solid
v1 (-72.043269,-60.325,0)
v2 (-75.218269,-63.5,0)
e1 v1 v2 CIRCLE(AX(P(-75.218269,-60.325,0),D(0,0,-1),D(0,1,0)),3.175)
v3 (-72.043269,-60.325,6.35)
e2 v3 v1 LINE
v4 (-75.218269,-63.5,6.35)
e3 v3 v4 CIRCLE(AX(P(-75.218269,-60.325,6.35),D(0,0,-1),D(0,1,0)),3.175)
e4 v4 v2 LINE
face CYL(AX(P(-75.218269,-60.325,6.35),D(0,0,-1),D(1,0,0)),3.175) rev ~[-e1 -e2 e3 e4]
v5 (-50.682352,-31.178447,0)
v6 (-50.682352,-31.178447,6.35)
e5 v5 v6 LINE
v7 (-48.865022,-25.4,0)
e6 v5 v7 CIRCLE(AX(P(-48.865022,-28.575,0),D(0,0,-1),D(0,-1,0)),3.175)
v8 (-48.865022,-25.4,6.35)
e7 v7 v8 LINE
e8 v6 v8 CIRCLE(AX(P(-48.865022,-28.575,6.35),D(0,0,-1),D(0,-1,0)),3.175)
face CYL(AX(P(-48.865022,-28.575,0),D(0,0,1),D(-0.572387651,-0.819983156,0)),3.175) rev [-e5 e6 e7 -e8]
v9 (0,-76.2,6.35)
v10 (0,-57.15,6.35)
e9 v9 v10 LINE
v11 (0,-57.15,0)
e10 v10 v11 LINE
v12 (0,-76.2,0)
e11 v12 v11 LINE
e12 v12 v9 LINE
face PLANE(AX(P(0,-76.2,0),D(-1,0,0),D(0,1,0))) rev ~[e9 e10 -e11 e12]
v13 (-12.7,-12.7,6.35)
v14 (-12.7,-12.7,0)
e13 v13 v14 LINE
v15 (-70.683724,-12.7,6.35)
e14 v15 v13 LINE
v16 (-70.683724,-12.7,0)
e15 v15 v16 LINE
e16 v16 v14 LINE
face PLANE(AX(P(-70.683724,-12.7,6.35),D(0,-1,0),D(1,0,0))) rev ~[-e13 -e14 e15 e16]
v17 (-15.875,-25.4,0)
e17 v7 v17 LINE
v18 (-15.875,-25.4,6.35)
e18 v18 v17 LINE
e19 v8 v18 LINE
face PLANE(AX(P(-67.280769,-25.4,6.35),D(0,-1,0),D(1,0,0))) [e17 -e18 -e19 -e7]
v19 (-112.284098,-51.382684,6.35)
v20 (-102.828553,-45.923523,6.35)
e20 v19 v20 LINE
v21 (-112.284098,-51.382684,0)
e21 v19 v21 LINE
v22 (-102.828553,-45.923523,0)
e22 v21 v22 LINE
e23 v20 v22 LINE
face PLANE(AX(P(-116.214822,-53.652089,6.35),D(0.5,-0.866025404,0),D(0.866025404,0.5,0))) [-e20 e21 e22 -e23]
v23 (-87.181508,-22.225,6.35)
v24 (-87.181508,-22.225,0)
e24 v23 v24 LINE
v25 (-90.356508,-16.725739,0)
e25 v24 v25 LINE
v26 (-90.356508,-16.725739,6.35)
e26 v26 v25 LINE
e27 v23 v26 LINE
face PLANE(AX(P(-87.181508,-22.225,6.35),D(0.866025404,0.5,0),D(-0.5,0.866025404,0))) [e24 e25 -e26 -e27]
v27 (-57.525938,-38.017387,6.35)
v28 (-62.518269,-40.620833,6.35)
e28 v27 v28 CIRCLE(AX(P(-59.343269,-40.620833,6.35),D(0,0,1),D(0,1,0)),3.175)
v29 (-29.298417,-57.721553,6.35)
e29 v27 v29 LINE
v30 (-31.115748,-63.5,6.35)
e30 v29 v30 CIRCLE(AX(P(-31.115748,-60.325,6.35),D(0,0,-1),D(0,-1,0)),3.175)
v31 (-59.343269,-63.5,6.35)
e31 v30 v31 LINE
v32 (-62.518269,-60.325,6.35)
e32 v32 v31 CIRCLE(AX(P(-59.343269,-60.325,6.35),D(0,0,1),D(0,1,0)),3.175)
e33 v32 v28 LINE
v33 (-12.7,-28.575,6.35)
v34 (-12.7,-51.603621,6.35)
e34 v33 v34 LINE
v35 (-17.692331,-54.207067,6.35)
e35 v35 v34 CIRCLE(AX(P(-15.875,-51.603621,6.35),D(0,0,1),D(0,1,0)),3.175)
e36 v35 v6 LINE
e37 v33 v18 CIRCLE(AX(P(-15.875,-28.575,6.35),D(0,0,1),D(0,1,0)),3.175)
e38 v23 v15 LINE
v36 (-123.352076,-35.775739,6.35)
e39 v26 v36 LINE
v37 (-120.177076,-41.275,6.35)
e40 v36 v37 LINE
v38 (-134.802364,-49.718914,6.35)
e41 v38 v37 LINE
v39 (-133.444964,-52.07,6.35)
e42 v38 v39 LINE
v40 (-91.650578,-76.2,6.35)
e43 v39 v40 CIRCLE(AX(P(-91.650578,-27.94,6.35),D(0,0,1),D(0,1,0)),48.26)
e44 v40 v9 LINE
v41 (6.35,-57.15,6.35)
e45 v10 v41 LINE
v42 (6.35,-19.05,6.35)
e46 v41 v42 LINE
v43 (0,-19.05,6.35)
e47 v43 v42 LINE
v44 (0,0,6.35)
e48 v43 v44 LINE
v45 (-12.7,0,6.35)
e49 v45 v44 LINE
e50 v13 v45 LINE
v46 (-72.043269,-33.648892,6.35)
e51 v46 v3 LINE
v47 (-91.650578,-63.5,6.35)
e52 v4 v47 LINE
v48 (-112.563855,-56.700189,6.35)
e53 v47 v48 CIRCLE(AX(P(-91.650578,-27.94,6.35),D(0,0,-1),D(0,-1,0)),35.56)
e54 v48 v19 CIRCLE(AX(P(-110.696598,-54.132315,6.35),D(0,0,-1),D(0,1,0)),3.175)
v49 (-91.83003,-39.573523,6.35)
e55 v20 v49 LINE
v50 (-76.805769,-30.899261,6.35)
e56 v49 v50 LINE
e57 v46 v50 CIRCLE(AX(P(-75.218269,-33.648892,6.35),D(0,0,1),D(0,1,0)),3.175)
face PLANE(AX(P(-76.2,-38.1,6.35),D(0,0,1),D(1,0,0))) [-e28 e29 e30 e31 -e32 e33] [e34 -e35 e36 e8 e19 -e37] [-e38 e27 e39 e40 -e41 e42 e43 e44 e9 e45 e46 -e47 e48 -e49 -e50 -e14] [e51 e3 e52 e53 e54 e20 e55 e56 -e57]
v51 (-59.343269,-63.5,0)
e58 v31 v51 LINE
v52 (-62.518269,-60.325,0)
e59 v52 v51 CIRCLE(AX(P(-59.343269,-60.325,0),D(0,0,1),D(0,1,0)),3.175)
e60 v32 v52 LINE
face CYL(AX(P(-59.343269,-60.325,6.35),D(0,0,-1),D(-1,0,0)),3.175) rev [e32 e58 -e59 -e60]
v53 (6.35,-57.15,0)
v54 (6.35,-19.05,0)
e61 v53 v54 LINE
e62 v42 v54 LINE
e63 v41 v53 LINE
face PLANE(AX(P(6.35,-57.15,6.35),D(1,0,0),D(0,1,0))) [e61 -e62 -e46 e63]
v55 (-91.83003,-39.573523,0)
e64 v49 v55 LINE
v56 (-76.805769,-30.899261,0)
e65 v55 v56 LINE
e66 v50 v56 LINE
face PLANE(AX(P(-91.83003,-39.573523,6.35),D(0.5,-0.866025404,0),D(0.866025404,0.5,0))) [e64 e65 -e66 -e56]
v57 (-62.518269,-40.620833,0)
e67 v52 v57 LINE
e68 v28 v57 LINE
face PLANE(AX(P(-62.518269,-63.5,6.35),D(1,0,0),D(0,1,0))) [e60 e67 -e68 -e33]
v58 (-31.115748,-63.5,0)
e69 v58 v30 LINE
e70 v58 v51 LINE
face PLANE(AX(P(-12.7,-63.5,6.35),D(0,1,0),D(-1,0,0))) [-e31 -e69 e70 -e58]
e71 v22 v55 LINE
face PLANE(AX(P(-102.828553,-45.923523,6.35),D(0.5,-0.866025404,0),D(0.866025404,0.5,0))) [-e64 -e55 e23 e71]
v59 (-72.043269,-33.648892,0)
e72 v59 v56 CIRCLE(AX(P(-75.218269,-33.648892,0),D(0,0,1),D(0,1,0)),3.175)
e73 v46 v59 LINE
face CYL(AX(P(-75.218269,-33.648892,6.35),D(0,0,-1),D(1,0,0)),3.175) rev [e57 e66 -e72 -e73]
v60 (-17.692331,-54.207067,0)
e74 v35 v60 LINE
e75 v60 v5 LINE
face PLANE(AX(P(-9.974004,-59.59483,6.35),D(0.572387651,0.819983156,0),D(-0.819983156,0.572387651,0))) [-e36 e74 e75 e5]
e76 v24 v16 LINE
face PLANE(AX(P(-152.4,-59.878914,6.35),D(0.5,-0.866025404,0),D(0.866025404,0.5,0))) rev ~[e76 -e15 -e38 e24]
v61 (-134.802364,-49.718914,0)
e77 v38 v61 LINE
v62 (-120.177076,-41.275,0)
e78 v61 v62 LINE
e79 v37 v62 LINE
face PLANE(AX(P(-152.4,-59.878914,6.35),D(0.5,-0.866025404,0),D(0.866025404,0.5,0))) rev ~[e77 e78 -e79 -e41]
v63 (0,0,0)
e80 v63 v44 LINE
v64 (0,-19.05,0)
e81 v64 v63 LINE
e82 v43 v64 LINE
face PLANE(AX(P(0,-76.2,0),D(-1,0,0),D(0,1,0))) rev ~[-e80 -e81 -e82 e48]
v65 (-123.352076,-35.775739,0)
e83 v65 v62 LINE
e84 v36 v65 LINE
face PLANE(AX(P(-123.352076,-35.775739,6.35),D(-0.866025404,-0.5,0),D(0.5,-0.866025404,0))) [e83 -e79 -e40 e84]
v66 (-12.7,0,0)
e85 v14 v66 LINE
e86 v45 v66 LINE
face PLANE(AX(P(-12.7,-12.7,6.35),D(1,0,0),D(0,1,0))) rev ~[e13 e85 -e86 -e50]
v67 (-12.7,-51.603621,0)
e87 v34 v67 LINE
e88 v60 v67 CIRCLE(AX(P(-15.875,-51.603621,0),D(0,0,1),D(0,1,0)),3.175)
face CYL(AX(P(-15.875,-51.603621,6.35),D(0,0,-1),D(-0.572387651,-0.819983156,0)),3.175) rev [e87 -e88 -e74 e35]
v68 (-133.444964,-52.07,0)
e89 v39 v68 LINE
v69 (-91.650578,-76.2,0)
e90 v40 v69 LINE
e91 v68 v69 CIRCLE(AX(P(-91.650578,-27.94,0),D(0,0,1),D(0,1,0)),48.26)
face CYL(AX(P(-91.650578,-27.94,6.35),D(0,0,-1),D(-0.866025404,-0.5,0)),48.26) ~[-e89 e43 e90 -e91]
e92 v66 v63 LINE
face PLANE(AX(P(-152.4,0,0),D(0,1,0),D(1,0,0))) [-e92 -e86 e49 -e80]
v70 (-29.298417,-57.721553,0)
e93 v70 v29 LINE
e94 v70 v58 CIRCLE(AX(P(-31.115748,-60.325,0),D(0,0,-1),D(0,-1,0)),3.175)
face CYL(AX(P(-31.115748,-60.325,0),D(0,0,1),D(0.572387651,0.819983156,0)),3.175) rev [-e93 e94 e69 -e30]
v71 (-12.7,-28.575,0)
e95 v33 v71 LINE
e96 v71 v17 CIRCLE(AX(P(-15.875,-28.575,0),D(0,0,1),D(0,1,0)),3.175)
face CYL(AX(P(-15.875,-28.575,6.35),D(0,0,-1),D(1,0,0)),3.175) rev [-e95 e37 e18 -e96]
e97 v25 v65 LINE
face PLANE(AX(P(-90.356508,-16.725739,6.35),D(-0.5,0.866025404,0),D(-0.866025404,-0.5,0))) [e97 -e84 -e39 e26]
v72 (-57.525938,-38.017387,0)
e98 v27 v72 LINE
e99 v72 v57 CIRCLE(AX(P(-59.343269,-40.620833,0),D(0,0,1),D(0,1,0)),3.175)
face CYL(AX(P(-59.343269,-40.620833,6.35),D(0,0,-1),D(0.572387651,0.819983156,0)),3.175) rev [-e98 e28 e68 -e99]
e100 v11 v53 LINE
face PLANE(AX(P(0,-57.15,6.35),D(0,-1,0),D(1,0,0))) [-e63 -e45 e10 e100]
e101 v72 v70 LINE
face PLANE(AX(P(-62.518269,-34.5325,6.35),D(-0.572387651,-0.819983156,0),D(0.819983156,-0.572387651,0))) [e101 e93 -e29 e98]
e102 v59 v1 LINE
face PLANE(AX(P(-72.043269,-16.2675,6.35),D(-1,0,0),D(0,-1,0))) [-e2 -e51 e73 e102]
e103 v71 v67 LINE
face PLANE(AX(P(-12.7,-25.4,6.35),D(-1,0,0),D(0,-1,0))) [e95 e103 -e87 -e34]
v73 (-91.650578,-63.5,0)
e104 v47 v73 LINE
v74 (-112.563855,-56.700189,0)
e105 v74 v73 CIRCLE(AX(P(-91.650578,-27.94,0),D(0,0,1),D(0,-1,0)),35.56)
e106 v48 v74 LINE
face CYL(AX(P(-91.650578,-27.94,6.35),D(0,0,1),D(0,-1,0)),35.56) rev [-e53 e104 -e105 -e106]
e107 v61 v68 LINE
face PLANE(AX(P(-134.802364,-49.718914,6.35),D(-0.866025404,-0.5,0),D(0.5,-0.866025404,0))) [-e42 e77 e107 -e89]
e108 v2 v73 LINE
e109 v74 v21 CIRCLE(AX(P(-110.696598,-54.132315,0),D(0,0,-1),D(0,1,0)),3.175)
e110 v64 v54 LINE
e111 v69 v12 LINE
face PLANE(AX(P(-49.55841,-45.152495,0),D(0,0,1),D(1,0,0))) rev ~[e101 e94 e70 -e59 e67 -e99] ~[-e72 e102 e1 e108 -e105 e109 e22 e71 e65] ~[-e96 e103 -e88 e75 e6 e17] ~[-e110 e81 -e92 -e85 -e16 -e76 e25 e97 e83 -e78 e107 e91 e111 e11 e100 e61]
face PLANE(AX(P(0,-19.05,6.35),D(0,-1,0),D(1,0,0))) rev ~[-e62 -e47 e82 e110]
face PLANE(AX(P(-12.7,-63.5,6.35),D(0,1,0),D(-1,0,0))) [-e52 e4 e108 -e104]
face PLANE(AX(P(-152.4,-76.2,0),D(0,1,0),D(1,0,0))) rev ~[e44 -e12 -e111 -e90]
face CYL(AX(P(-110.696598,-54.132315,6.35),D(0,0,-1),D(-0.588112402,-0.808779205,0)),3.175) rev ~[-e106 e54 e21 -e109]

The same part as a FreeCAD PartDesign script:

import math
import FreeCAD as App
import Part
import Sketcher
from FreeCAD import Vector
Q = App.Units.Quantity


def edges_at(feature, points):
    """Names of the edges that pass closest to the given points."""
    edges = feature.Shape.Edges
    near = lambda p: min(range(len(edges)), key=lambda i: edges[i].distToShape(Part.Vertex(*p))[0])
    return sorted({f"Edge{near(p) + 1}" for p in points})


def add_polygon(sketch, points):
    """Adds a closed chain of lines whose ends are joined by coincident constraints."""
    first, n = sketch.GeometryCount, len(points)
    for a, b in zip(points, points[1:] + points[:1]):
        sketch.addGeometry(Part.LineSegment(App.Vector(*a, 0), App.Vector(*b, 0)), False)
    for i in range(n):
        sketch.addConstraint(Sketcher.Constraint("Coincident", first + i, 2, first + (i + 1) % n, 1))

doc = App.newDocument("Part")
body = doc.addObject("PartDesign::Body", "Body")

# Sketch on XY plane
sketch1 = body.newObject("Sketcher::SketchObject", "Sketch")
sketch1.AttachmentSupport = (doc.getObject("XY_Plane"), [""])
sketch1.MapMode = "FlatFace"
add_polygon(sketch1, [(-152, 0), (-152, -76), (0, -76), (0, 0)])  # lines 0-3
sketch1.addConstraint(Sketcher.Constraint("Vertical", 0))
sketch1.addConstraint(Sketcher.Constraint("Horizontal", 1))
sketch1.addConstraint(Sketcher.Constraint("Vertical", 2))
sketch1.addConstraint(Sketcher.Constraint("Horizontal", 3))
sketch1.addConstraint(Sketcher.Constraint("Coincident", 2, 2, -1, 1))
sketch1.addConstraint(Sketcher.Constraint("DistanceX", 1, 1, 1, 2, Q("6 in")))
sketch1.addConstraint(Sketcher.Constraint("DistanceY", 0, 2, 0, 1, Q("3 in")))
pad1 = body.newObject("PartDesign::Pad", "Pad")
pad1.Profile = sketch1
pad1.Length = Q("0.25 in")

# Sketch on XY plane
sketch2 = body.newObject("Sketcher::SketchObject", "Sketch001")
sketch2.AttachmentSupport = (doc.getObject("XY_Plane"), [""])
sketch2.MapMode = "FlatFace"
sketch2.AttachmentOffset = App.Placement(Vector(0, 0, 0.25 * 25.4), App.Rotation())
add_polygon(sketch2, [(0, -19), (0, -57), (6, -57), (6, -19)])  # lines 0-3
sketch2.addConstraint(Sketcher.Constraint("Vertical", 0))
sketch2.addConstraint(Sketcher.Constraint("Horizontal", 1))
sketch2.addConstraint(Sketcher.Constraint("Vertical", 2))
sketch2.addConstraint(Sketcher.Constraint("Horizontal", 3))
sketch2.addConstraint(Sketcher.Constraint("PointOnObject", 0, 2, -2))
sketch2.addConstraint(Sketcher.Constraint("DistanceY", 0, 2, 0, 1, Q("1.5 in")))
sketch2.addConstraint(Sketcher.Constraint("DistanceX", 1, 1, 1, 2, Q("0.25 in")))
sketch2.addConstraint(Sketcher.Constraint("DistanceY", 0, 2, -1, 1, Q("2.25 in")))
pad2 = body.newObject("PartDesign::Pad", "Pad001")
pad2.Profile = sketch2
pad2.Length = Q("0.25 in")
pad2.Reversed = True

# Sketch on XY plane
sketch3 = body.newObject("Sketcher::SketchObject", "Sketch002")
sketch3.AttachmentSupport = (doc.getObject("XY_Plane"), [""])
sketch3.MapMode = "FlatFace"
sketch3.AttachmentOffset = App.Placement(Vector(0, 0, 0.25 * 25.4), App.Rotation())
add_polygon(sketch3, [(-152, -60), (-71, -13), (-13, -13), (-13, 0), (-152, 0)])  # lines 0-4
sketch3.addConstraint(Sketcher.Constraint("Horizontal", 1))
sketch3.addConstraint(Sketcher.Constraint("Vertical", 2))
sketch3.addConstraint(Sketcher.Constraint("Horizontal", 3))
sketch3.addConstraint(Sketcher.Constraint("Vertical", 4))
sketch3.addConstraint(Sketcher.Constraint("PointOnObject", 2, 2, -1))
sketch3.addConstraint(Sketcher.Constraint("DistanceX", 3, 2, 3, 1, Q("5.5 in")))
sketch3.addConstraint(Sketcher.Constraint("DistanceY", 2, 1, 2, 2, Q("0.5 in")))
sketch3.addConstraint(Sketcher.Constraint("DistanceX", 3, 2, -1, 1, Q("6 in")))
sketch3.addConstraint(Sketcher.Constraint("Angle", 0, Q("30 deg")))
sketch3.addConstraint(Sketcher.Constraint("DistanceX", 1, 1, 1, 2, 57.983724))
pocket1 = body.newObject("PartDesign::Pocket", "Pocket")
pocket1.Profile = sketch3
pocket1.Type = "ThroughAll"

# Sketch on XY plane
sketch4 = body.newObject("Sketcher::SketchObject", "Sketch003")
sketch4.AttachmentSupport = (doc.getObject("XY_Plane"), [""])
sketch4.MapMode = "FlatFace"
sketch4.AttachmentOffset = App.Placement(Vector(0, 0, 0.25 * 25.4), App.Rotation())
add_polygon(sketch4, [(-133, -76), (-152, -60), (-152, -76)])  # lines 0-2
sketch4.addConstraint(Sketcher.Constraint("Vertical", 1))
sketch4.addConstraint(Sketcher.Constraint("Horizontal", 2))
sketch4.addConstraint(Sketcher.Constraint("DistanceX", 0, 2, -1, 1, Q("6 in")))
sketch4.addConstraint(Sketcher.Constraint("DistanceY", 1, 2, -1, 1, Q("3 in")))
sketch4.addConstraint(Sketcher.Constraint("DistanceX", 2, 1, 2, 2, Q("0.75 in")))
sketch4.addConstraint(Sketcher.Constraint("Distance", 0, 25.085461))
pocket2 = body.newObject("PartDesign::Pocket", "Pocket001")
pocket2.Profile = sketch4
pocket2.Type = "ThroughAll"

# Sketch on XY plane
sketch5 = body.newObject("Sketcher::SketchObject", "Sketch004")
sketch5.AttachmentSupport = (doc.getObject("XY_Plane"), [""])
sketch5.MapMode = "FlatFace"
sketch5.AttachmentOffset = App.Placement(Vector(0, 0, 0.25 * 25.4), App.Rotation())
add_polygon(sketch5, [(-87, -22), (-90, -17), (-123, -36), (-120, -41)])  # lines 0-3
sketch5.addConstraint(Sketcher.Constraint("Perpendicular", 0, 1))
sketch5.addConstraint(Sketcher.Constraint("Perpendicular", 1, 2))
sketch5.addConstraint(Sketcher.Constraint("Perpendicular", 2, 3))
sketch5.addConstraint(Sketcher.Constraint("Angle", 0, Q("120 deg")))
sketch5.addConstraint(Sketcher.Constraint("Distance", 1, Q("1.5 in")))
sketch5.addConstraint(Sketcher.Constraint("Distance", 0, Q("0.25 in")))
sketch5.addConstraint(Sketcher.Constraint("DistanceY", 2, 2, -1, 1, Q("1.625 in")))
sketch5.addConstraint(Sketcher.Constraint("DistanceX", 0, 2, -1, 1, 90.356508))
pad3 = body.newObject("PartDesign::Pad", "Pad002")
pad3.Profile = sketch5
pad3.Length = Q("0.25 in")
pad3.Reversed = True

# Sketch on XY plane
sketch6 = body.newObject("Sketcher::SketchObject", "Sketch005")
sketch6.AttachmentSupport = (doc.getObject("XY_Plane"), [""])
sketch6.MapMode = "FlatFace"
sketch6.AttachmentOffset = App.Placement(Vector(0, 0, 0.25 * 25.4), App.Rotation())
add_polygon(sketch6, [(-120, -76), (-135, -50), (-152, -60), (-133, -76)])  # lines 0-3
sketch6.addConstraint(Sketcher.Constraint("Horizontal", 3))
sketch6.addConstraint(Sketcher.Constraint("Perpendicular", 0, 1))
sketch6.addConstraint(Sketcher.Constraint("DistanceX", 1, 2, -1, 1, Q("6 in")))
sketch6.addConstraint(Sketcher.Constraint("DistanceY", 2, 2, -1, 1, Q("3 in")))
sketch6.addConstraint(Sketcher.Constraint("Angle", 0, Q("120 deg")))
sketch6.addConstraint(Sketcher.Constraint("Distance", 1, Q("0.8 in")))
sketch6.addConstraint(Sketcher.Constraint("DistanceX", 2, 2, -1, 1, Q("5.25 in")))
sketch6.addConstraint(Sketcher.Constraint("DistanceX", 3, 1, 3, 2, 13.836498))
pocket3 = body.newObject("PartDesign::Pocket", "Pocket002")
pocket3.Profile = sketch6
pocket3.Type = "ThroughAll"
doc.recompute()

fillet = body.newObject("PartDesign::Fillet", "Fillet")
fillet.Base = (pocket3, edges_at(pocket3, [(-119.514, -76.2, 3.175)]))
fillet.Radius = Q("1.9 in")

# Sketch on XY plane
sketch7 = body.newObject("Sketcher::SketchObject", "Sketch006")
sketch7.AttachmentSupport = (doc.getObject("XY_Plane"), [""])
sketch7.MapMode = "FlatFace"
sketch7.AttachmentOffset = App.Placement(Vector(0, 0, 0.25 * 25.4), App.Rotation())
sketch7.addGeometry(Part.LineSegment(Vector(-92, -40, 0), Vector(-103, -46, 0)), False)
sketch7.addGeometry(Part.LineSegment(Vector(-103, -46, 0), Vector(-116, -54, 0)), False)
sketch7.addGeometry(Part.ArcOfCircle(Part.Circle(Vector(-92, -28, 0), Vector(0, 0, 1), 36), math.radians(-134), math.radians(-90)), False)
sketch7.addGeometry(Part.LineSegment(Vector(-92, -64, 0), Vector(-13, -64, 0)), False)
sketch7.addGeometry(Part.LineSegment(Vector(-13, -64, 0), Vector(-13, -25, 0)), False)
sketch7.addGeometry(Part.LineSegment(Vector(-13, -25, 0), Vector(-67, -25, 0)), False)
sketch7.addGeometry(Part.LineSegment(Vector(-67, -25, 0), Vector(-92, -40, 0)), False)
sketch7.addConstraint(Sketcher.Constraint("Coincident", 0, 2, 1, 1))
sketch7.addConstraint(Sketcher.Constraint("Coincident", 1, 2, 2, 1))
sketch7.addConstraint(Sketcher.Constraint("Tangent", 2, 2, 3, 1))
sketch7.addConstraint(Sketcher.Constraint("Coincident", 3, 2, 4, 1))
sketch7.addConstraint(Sketcher.Constraint("Coincident", 4, 2, 5, 1))
sketch7.addConstraint(Sketcher.Constraint("Coincident", 5, 2, 6, 1))
sketch7.addConstraint(Sketcher.Constraint("Coincident", 6, 2, 0, 1))
sketch7.addConstraint(Sketcher.Constraint("Horizontal", 3))
sketch7.addConstraint(Sketcher.Constraint("Vertical", 4))
sketch7.addConstraint(Sketcher.Constraint("Horizontal", 5))
sketch7.addConstraint(Sketcher.Constraint("Parallel", 0, 1))
sketch7.addConstraint(Sketcher.Constraint("Parallel", 1, 6))
sketch7.addConstraint(Sketcher.Constraint("Radius", 2, Q("1.4 in")))
sketch7.addConstraint(Sketcher.Constraint("DistanceY", 4, 1, 4, 2, Q("1.5 in")))
sketch7.addConstraint(Sketcher.Constraint("DistanceY", 4, 2, -1, 1, Q("1 in")))
sketch7.addConstraint(Sketcher.Constraint("Angle", 0, Q("-150 deg")))
sketch7.addConstraint(Sketcher.Constraint("Distance", 0, Q("0.5 in")))
sketch7.addConstraint(Sketcher.Constraint("DistanceX", 3, 2, -1, 1, Q("0.5 in")))
sketch7.addConstraint(Sketcher.Constraint("DistanceX", 5, 2, 5, 1, 54.580769))
sketch7.addConstraint(Sketcher.Constraint("Distance", 1, 15.457132))
sketch7.addConstraint(Sketcher.Constraint("DistanceX", 3, 1, 3, 2, 78.950578))
pocket4 = body.newObject("PartDesign::Pocket", "Pocket003")
pocket4.Profile = sketch7
pocket4.Type = "ThroughAll"

# Sketch on XY plane
sketch8 = body.newObject("Sketcher::SketchObject", "Sketch007")
sketch8.AttachmentSupport = (doc.getObject("XY_Plane"), [""])
sketch8.MapMode = "FlatFace"
sketch8.AttachmentOffset = App.Placement(Vector(0, 0, 0.25 * 25.4), App.Rotation())
add_polygon(sketch8, [(-10, -60), (-72, -16), (-72, -64), (-63, -64), (-63, -35), (-15, -67)])  # lines 0-5
sketch8.addConstraint(Sketcher.Constraint("Vertical", 1))
sketch8.addConstraint(Sketcher.Constraint("Horizontal", 2))
sketch8.addConstraint(Sketcher.Constraint("Vertical", 3))
sketch8.addConstraint(Sketcher.Constraint("Parallel", 0, 4))
sketch8.addConstraint(Sketcher.Constraint("Perpendicular", 4, 5))
sketch8.addConstraint(Sketcher.Constraint("DistanceY", 1, 2, -1, 1, Q("2.5 in")))
sketch8.addConstraint(Sketcher.Constraint("DistanceX", 2, 1, 2, 2, Q("0.375 in")))
sketch8.addConstraint(Sketcher.Constraint("Distance", 5, Q("0.375 in")))
sketch8.addConstraint(Sketcher.Constraint("DistanceY", 1, 2, 1, 1, 47.2325))
sketch8.addConstraint(Sketcher.Constraint("DistanceY", 3, 1, 3, 2, 28.9675))
sketch8.addConstraint(Sketcher.Constraint("Distance", 0, 75.695781))
sketch8.addConstraint(Sketcher.Constraint("DistanceX", 0, 2, -1, 1, 72.043269))
pad4 = body.newObject("PartDesign::Pad", "Pad003")
pad4.Profile = sketch8
pad4.Length = Q("0.25 in")
pad4.Reversed = True
doc.recompute()

fillet2 = body.newObject("PartDesign::Fillet", "Fillet001")
fillet2.Base = (pad4, edges_at(pad4, [
    (-116.215, -53.652, 3.175),
    (-12.7, -25.4, 3.175),
    (-21.02, -63.5, 3.175),
    (-12.7, -57.692, 3.175),
    (-58.96, -25.4, 3.175),
    (-72.043, -63.5, 3.175),
    (-72.043, -28.15, 3.175),
    (-62.518, -34.533, 3.175),
    (-62.518, -63.5, 3.175),
]))
fillet2.Radius = Q("0.125 in")

doc.recompute()
